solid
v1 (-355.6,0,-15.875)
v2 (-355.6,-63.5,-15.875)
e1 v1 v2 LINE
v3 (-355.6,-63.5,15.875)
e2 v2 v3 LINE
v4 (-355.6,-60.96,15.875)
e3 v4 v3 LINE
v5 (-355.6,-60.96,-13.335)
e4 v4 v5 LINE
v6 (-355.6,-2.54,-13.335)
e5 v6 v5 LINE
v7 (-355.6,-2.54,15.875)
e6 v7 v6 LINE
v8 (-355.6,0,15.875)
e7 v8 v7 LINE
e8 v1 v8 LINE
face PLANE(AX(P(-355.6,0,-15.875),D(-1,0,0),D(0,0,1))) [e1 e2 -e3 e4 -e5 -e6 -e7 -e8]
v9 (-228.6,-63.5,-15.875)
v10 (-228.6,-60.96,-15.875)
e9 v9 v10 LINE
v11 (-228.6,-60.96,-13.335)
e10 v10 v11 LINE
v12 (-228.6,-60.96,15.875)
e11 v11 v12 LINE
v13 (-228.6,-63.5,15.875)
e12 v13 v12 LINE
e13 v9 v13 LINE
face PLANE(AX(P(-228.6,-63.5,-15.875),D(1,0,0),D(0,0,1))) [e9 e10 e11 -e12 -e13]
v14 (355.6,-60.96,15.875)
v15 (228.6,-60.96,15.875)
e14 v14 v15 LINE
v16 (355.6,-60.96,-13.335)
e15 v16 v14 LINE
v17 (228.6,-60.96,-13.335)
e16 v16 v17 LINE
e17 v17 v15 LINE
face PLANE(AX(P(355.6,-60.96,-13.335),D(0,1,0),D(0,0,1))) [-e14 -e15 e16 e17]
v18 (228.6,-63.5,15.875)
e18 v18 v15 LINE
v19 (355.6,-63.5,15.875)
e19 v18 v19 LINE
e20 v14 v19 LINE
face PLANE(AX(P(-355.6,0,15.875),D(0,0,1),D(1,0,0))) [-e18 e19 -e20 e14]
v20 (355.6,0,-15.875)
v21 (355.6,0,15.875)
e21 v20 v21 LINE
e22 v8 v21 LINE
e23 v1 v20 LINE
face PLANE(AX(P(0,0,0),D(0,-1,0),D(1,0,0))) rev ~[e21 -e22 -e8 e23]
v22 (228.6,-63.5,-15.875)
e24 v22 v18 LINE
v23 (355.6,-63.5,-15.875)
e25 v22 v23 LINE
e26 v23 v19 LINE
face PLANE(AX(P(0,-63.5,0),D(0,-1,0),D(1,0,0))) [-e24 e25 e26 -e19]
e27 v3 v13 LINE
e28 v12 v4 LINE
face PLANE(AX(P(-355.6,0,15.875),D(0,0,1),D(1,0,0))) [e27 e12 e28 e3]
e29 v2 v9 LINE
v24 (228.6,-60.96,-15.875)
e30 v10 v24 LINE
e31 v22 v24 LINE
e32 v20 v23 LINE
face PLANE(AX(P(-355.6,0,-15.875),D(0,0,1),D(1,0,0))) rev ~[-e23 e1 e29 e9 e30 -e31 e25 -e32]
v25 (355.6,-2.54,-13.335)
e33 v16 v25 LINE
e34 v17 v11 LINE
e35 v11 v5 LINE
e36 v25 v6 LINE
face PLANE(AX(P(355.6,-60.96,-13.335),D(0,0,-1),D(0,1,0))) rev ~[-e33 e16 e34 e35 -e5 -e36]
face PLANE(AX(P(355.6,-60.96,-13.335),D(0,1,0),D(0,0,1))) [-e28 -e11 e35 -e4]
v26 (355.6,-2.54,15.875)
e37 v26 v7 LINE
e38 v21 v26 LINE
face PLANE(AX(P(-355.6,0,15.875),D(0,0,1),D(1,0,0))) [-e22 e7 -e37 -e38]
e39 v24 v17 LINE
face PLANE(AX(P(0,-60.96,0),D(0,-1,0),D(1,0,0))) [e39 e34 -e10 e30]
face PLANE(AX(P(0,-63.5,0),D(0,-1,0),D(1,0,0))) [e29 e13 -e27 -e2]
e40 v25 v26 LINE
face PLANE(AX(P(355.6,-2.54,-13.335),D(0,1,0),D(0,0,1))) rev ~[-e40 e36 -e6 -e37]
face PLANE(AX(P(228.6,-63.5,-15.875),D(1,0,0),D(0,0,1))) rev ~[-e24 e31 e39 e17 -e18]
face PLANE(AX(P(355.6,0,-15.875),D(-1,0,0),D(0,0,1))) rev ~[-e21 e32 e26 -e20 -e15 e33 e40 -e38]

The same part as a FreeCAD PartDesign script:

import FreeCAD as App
import Part
import Sketcher
Q = App.Units.Quantity


def add_polygon(sketch, points):
    """Adds a closed chain of lines whose ends are joined by coincident constraints."""
    first, n = sketch.GeometryCount, len(points)
    for a, b in zip(points, points[1:] + points[:1]):
        sketch.addGeometry(Part.LineSegment(App.Vector(*a, 0), App.Vector(*b, 0)), False)
    for i in range(n):
        sketch.addConstraint(Sketcher.Constraint("Coincident", first + i, 2, first + (i + 1) % n, 1))

doc = App.newDocument("Part")
body = doc.addObject("PartDesign::Body", "Body")

# Sketch on XZ plane
sketch1 = doc.addObject("Sketcher::SketchObject", "Sketch")
body.addObject(sketch1)
sketch1.AttachmentSupport = (doc.XZ_Plane, [""])
sketch1.MapMode = "FlatFace"
add_polygon(sketch1, [(-356, 16), (-356, -16), (356, -16), (356, 16)])  # lines 0-3
sketch1.addConstraint(Sketcher.Constraint("Vertical", 0))
sketch1.addConstraint(Sketcher.Constraint("Horizontal", 1))
sketch1.addConstraint(Sketcher.Constraint("Vertical", 2))
sketch1.addConstraint(Sketcher.Constraint("Horizontal", 3))
sketch1.addConstraint(Sketcher.Constraint("Symmetric", 0, 2, 2, 2, -1, 1))
sketch1.addConstraint(Sketcher.Constraint("DistanceX", 1, 1, 1, 2, Q("28 in")))
sketch1.addConstraint(Sketcher.Constraint("DistanceY", 0, 2, 0, 1, Q("1.25 in")))
pad1 = doc.addObject("PartDesign::Pad", "Pad")
body.addObject(pad1)
pad1.Profile = sketch1
pad1.Length = Q("2.5 in")

# Sketch on YZ plane
sketch2 = doc.addObject("Sketcher::SketchObject", "Sketch001")
body.addObject(sketch2)
sketch2.AttachmentSupport = (doc.YZ_Plane, [""])
sketch2.MapMode = "FlatFace"
sketch2.AttachmentOffset = App.Placement(App.Vector(0, 0, 14 * 25.4), App.Rotation())
add_polygon(sketch2, [(-61, 16), (-61, -13), (-3, -13), (-3, 16)])  # lines 0-3
sketch2.addConstraint(Sketcher.Constraint("Vertical", 0))
sketch2.addConstraint(Sketcher.Constraint("Horizontal", 1))
sketch2.addConstraint(Sketcher.Constraint("Vertical", 2))
sketch2.addConstraint(Sketcher.Constraint("Horizontal", 3))
sketch2.addConstraint(Sketcher.Constraint("DistanceX", 1, 1, 1, 2, Q("2.3 in")))
sketch2.addConstraint(Sketcher.Constraint("DistanceY", 0, 2, 0, 1, Q("1.15 in")))
sketch2.addConstraint(Sketcher.Constraint("DistanceX", 0, 2, -1, 1, Q("2.4 in")))
sketch2.addConstraint(Sketcher.Constraint("DistanceY", 0, 2, -1, 1, Q("0.525 in")))
pocket1 = doc.addObject("PartDesign::Pocket", "Pocket")
body.addObject(pocket1)
pocket1.Profile = sketch2
pocket1.Type = "ThroughAll"

# Sketch on XZ plane
sketch3 = doc.addObject("Sketcher::SketchObject", "Sketch002")
body.addObject(sketch3)
sketch3.AttachmentSupport = (doc.XZ_Plane, [""])
sketch3.MapMode = "FlatFace"
sketch3.AttachmentOffset = App.Placement(App.Vector(0, 0, 2.5 * 25.4), App.Rotation())
add_polygon(sketch3, [(-229, 16), (-229, -16), (229, -16), (229, 16)])  # lines 0-3
sketch3.addConstraint(Sketcher.Constraint("Vertical", 0))
sketch3.addConstraint(Sketcher.Constraint("Horizontal", 1))
sketch3.addConstraint(Sketcher.Constraint("Vertical", 2))
sketch3.addConstraint(Sketcher.Constraint("Horizontal", 3))
sketch3.addConstraint(Sketcher.Constraint("Symmetric", 0, 2, 2, 2, -1, 1))
sketch3.addConstraint(Sketcher.Constraint("DistanceX", 1, 1, 1, 2, Q("18 in")))
sketch3.addConstraint(Sketcher.Constraint("DistanceY", 0, 2, 0, 1, Q("1.25 in")))
pocket2 = doc.addObject("PartDesign::Pocket", "Pocket001")
body.addObject(pocket2)
pocket2.Profile = sketch3
pocket2.Length = Q("0.1 in")

doc.recompute()
